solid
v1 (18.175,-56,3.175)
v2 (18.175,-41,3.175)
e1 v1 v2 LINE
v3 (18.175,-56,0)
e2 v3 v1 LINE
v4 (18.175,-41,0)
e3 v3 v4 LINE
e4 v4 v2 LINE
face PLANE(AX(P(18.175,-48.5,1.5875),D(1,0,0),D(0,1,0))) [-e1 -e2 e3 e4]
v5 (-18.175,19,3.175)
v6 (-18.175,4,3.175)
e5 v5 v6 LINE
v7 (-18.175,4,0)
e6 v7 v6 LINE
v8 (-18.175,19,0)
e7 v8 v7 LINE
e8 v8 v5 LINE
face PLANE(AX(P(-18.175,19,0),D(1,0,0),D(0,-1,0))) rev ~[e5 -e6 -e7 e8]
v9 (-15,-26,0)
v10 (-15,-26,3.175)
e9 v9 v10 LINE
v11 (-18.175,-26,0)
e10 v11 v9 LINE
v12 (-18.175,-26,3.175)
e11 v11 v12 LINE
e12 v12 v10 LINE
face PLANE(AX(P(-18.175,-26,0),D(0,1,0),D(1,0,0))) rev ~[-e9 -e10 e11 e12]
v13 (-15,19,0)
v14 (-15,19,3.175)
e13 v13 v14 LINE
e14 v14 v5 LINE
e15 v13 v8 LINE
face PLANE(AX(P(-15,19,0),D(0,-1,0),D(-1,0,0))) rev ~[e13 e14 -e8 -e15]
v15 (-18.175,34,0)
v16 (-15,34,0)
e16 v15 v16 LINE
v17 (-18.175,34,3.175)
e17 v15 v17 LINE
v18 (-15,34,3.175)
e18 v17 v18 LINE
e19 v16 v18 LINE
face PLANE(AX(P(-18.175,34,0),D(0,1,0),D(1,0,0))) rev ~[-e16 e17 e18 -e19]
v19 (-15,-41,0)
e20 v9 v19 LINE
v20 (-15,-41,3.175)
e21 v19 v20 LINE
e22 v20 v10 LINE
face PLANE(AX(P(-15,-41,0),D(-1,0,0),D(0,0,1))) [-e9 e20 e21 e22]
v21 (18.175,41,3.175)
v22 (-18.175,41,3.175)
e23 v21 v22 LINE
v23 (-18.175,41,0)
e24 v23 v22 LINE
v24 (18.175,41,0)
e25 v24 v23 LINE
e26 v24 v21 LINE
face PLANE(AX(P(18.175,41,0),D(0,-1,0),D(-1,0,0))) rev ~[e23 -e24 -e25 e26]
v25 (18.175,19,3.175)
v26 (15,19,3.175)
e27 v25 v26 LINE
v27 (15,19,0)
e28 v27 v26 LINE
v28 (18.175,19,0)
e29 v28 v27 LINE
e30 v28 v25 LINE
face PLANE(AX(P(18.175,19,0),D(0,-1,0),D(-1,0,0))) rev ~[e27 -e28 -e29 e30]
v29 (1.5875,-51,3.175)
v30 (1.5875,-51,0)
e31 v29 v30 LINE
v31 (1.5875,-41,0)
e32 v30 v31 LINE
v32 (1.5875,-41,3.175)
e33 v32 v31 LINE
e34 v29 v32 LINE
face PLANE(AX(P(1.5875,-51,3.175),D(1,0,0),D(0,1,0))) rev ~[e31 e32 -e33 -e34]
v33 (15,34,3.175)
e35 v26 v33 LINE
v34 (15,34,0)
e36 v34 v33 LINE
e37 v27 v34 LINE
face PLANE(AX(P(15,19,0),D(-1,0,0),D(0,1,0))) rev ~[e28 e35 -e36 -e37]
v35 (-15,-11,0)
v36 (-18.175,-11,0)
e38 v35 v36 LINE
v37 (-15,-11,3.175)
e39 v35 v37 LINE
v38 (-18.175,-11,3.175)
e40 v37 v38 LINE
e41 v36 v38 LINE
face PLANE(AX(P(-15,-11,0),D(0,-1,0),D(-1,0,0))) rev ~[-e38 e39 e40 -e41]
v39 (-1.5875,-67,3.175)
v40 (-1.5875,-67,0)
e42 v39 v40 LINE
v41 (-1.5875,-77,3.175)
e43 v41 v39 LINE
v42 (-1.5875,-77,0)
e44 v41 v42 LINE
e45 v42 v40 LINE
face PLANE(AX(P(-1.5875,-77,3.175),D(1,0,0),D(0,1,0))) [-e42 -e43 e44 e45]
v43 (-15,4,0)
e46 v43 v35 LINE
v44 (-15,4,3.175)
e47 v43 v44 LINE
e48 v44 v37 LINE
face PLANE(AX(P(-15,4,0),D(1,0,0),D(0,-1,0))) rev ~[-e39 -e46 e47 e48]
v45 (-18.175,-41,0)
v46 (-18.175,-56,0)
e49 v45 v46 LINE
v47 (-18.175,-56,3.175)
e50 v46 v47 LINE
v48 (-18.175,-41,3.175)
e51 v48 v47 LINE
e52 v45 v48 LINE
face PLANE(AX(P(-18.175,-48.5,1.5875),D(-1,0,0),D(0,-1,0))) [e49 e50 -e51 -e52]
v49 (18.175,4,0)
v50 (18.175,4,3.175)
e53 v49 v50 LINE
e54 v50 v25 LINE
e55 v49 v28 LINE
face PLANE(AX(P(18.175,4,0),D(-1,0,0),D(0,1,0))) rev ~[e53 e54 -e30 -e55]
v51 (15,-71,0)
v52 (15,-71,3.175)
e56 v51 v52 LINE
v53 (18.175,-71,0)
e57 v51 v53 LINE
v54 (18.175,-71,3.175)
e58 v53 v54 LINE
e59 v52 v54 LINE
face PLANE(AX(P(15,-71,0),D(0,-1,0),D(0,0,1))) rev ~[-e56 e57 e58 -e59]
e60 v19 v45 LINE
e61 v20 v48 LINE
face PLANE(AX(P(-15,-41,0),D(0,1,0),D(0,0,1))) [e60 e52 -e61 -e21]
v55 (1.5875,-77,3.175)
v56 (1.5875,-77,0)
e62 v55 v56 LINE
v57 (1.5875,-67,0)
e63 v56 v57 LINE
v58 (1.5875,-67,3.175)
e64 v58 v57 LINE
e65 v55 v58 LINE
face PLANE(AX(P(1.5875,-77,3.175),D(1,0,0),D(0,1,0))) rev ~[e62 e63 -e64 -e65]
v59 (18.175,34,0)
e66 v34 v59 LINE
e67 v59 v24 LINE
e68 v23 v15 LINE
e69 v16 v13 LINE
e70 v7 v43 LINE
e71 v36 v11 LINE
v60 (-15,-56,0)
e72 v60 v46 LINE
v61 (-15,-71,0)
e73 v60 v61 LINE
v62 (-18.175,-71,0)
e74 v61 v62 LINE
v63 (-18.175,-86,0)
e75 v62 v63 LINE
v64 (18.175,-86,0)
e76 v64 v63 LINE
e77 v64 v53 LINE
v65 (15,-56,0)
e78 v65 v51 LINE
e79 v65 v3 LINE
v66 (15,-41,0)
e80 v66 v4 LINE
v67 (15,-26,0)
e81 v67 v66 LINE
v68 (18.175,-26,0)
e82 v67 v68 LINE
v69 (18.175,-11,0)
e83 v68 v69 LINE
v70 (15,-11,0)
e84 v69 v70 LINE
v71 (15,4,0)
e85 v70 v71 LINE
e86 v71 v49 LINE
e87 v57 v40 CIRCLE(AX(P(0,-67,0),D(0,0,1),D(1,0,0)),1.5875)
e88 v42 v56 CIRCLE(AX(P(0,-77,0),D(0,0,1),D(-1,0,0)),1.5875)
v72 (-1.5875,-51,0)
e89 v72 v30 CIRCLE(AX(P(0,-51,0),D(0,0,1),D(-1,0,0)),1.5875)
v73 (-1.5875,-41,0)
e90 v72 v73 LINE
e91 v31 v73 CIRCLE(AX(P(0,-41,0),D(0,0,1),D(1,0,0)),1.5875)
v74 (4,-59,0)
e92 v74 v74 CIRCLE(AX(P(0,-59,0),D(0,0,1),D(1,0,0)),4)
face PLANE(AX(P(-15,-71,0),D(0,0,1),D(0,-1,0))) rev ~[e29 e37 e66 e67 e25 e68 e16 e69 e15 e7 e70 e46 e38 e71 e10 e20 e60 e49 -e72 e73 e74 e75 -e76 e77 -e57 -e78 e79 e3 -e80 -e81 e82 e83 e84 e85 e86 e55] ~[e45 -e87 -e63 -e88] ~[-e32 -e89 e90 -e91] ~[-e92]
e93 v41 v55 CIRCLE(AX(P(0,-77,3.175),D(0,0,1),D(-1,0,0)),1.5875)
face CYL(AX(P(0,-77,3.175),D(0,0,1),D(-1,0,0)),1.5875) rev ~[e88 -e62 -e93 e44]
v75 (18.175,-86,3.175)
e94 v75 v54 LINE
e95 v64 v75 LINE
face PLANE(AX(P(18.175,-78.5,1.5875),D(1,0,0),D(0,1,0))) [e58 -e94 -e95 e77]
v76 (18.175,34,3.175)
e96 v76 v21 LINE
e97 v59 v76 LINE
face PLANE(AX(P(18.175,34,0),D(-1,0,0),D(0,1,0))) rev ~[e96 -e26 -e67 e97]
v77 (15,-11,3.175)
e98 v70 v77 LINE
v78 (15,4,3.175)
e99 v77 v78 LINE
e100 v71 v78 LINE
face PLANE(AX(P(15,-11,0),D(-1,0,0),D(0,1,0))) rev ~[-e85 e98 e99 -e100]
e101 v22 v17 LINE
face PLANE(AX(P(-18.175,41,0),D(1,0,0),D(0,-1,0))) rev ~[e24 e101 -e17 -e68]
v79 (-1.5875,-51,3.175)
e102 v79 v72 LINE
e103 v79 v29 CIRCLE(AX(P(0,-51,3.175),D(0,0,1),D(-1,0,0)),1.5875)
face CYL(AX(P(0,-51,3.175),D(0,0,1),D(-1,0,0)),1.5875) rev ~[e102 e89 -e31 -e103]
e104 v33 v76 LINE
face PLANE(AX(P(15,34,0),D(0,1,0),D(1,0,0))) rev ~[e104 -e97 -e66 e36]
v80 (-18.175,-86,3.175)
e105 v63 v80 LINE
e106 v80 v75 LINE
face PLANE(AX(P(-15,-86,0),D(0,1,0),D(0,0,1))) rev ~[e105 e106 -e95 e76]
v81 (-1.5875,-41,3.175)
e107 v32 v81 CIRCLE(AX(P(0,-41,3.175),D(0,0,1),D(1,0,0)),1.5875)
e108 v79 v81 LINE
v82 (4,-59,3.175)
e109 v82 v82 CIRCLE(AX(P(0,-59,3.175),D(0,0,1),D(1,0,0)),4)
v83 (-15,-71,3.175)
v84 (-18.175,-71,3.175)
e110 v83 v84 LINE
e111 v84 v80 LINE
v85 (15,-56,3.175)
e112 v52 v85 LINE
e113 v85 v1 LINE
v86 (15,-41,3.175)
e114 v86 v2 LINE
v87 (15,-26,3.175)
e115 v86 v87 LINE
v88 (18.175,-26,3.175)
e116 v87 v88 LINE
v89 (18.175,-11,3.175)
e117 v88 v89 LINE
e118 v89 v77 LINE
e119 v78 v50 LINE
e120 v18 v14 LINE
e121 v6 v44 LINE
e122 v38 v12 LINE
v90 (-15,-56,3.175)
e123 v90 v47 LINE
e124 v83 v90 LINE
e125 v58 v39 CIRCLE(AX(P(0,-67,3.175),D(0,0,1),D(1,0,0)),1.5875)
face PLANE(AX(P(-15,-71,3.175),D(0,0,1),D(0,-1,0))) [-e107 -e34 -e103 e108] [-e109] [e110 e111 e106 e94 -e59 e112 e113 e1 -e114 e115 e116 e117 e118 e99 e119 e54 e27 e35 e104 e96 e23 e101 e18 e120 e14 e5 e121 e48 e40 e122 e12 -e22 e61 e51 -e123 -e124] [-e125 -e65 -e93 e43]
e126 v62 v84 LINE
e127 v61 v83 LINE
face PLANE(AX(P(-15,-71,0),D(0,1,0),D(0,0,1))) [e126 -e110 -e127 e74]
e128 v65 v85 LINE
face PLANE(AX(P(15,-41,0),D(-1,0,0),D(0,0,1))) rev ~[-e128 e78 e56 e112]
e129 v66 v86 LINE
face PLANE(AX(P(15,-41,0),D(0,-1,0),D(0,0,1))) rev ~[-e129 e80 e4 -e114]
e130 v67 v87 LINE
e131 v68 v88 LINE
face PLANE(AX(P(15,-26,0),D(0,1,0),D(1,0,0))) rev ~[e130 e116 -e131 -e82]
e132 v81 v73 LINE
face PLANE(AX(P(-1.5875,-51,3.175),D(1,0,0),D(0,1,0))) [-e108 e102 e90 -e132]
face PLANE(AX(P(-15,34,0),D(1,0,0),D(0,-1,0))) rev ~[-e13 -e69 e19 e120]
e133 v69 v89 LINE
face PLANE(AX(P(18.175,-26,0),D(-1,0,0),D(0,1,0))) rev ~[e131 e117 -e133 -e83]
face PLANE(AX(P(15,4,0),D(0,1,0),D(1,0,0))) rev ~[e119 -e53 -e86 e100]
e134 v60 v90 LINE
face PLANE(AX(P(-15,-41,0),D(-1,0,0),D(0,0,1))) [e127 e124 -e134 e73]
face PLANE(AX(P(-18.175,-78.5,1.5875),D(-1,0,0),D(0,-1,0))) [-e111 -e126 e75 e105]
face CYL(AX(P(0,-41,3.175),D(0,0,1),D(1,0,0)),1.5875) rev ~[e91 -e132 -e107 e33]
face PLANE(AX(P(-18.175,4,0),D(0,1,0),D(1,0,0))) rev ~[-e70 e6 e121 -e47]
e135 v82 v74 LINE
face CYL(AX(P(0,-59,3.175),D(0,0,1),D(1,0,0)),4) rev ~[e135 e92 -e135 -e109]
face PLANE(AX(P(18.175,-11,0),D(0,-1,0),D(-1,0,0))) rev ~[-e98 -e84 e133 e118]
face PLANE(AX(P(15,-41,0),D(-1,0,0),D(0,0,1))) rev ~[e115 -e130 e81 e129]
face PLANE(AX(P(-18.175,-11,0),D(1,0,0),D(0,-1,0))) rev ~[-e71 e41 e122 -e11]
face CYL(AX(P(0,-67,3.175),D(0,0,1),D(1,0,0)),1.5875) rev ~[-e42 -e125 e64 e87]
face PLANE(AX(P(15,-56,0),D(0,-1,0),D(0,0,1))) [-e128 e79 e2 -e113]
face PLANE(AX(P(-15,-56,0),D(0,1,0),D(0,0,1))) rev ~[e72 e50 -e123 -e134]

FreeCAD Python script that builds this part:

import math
import FreeCAD as App
import Part
import Sketcher

V = App.Vector

doc = App.newDocument("Part")
body = doc.addObject("PartDesign::Body", "Body")

# Sketch on XY plane
sketch1 = body.newObject("Sketcher::SketchObject", "Sketch")
sketch1.AttachmentSupport = (doc.getObject("XY_Plane"), [""])
sketch1.MapMode = "FlatFace"
sketch1.addGeometry([
    Part.LineSegment(V(-15, -41, 0), V(15, -41, 0)),  # 0
    Part.LineSegment(V(15, -41, 0), V(15, -26, 0)),  # 1
    Part.LineSegment(V(15, -26, 0), V(18.2, -26, 0)),  # 2
    Part.LineSegment(V(18.2, -26, 0), V(18.2, -11, 0)),  # 3
    Part.LineSegment(V(18.2, -11, 0), V(15, -11, 0)),  # 4
    Part.LineSegment(V(15, -11, 0), V(15, 4, 0)),  # 5
    Part.LineSegment(V(15, 4, 0), V(18.2, 4, 0)),  # 6
    Part.LineSegment(V(18.2, 4, 0), V(18.2, 19, 0)),  # 7
    Part.LineSegment(V(18.2, 19, 0), V(15, 19, 0)),  # 8
    Part.LineSegment(V(15, 19, 0), V(15, 34, 0)),  # 9
    Part.LineSegment(V(15, 34, 0), V(18.2, 34, 0)),  # 10
    Part.LineSegment(V(18.2, 34, 0), V(18.2, 41, 0)),  # 11
    Part.LineSegment(V(18.2, 41, 0), V(-18.2, 41, 0)),  # 12
    Part.LineSegment(V(-18.2, 41, 0), V(-18.2, 34, 0)),  # 13
    Part.LineSegment(V(-18.2, 34, 0), V(-15, 34, 0)),  # 14
    Part.LineSegment(V(-15, 34, 0), V(-15, 19, 0)),  # 15
    Part.LineSegment(V(-15, 19, 0), V(-18.2, 19, 0)),  # 16
    Part.LineSegment(V(-18.2, 19, 0), V(-18.2, 4, 0)),  # 17
    Part.LineSegment(V(-18.2, 4, 0), V(-15, 4, 0)),  # 18
    Part.LineSegment(V(-15, 4, 0), V(-15, -11, 0)),  # 19
    Part.LineSegment(V(-15, -11, 0), V(-18.2, -11, 0)),  # 20
    Part.LineSegment(V(-18.2, -11, 0), V(-18.2, -26, 0)),  # 21
    Part.LineSegment(V(-18.2, -26, 0), V(-15, -26, 0)),  # 22
    Part.LineSegment(V(-15, -26, 0), V(-15, -41, 0)),  # 23
], False)
sketch1.addConstraint([
    Sketcher.Constraint("Coincident", 0, 2, 1, 1),
    Sketcher.Constraint("Coincident", 1, 2, 2, 1),
    Sketcher.Constraint("Coincident", 2, 2, 3, 1),
    Sketcher.Constraint("Coincident", 3, 2, 4, 1),
    Sketcher.Constraint("Coincident", 4, 2, 5, 1),
    Sketcher.Constraint("Coincident", 5, 2, 6, 1),
    Sketcher.Constraint("Coincident", 6, 2, 7, 1),
    Sketcher.Constraint("Coincident", 7, 2, 8, 1),
    Sketcher.Constraint("Coincident", 8, 2, 9, 1),
    Sketcher.Constraint("Coincident", 9, 2, 10, 1),
    Sketcher.Constraint("Coincident", 10, 2, 11, 1),
    Sketcher.Constraint("Coincident", 11, 2, 12, 1),
    Sketcher.Constraint("Coincident", 12, 2, 13, 1),
    Sketcher.Constraint("Coincident", 13, 2, 14, 1),
    Sketcher.Constraint("Coincident", 14, 2, 15, 1),
    Sketcher.Constraint("Coincident", 15, 2, 16, 1),
    Sketcher.Constraint("Coincident", 16, 2, 17, 1),
    Sketcher.Constraint("Coincident", 17, 2, 18, 1),
    Sketcher.Constraint("Coincident", 18, 2, 19, 1),
    Sketcher.Constraint("Coincident", 19, 2, 20, 1),
    Sketcher.Constraint("Coincident", 20, 2, 21, 1),
    Sketcher.Constraint("Coincident", 21, 2, 22, 1),
    Sketcher.Constraint("Coincident", 22, 2, 23, 1),
    Sketcher.Constraint("Coincident", 23, 2, 0, 1),
    Sketcher.Constraint("Horizontal", 0),
    Sketcher.Constraint("Vertical", 1),
    Sketcher.Constraint("Horizontal", 2),
    Sketcher.Constraint("Vertical", 3),
    Sketcher.Constraint("Horizontal", 4),
    Sketcher.Constraint("Vertical", 5),
    Sketcher.Constraint("Horizontal", 6),
    Sketcher.Constraint("Vertical", 7),
    Sketcher.Constraint("Horizontal", 8),
    Sketcher.Constraint("Vertical", 9),
    Sketcher.Constraint("Horizontal", 10),
    Sketcher.Constraint("Vertical", 11),
    Sketcher.Constraint("Horizontal", 12),
    Sketcher.Constraint("Vertical", 13),
    Sketcher.Constraint("Horizontal", 14),
    Sketcher.Constraint("Vertical", 15),
    Sketcher.Constraint("Horizontal", 16),
    Sketcher.Constraint("Vertical", 17),
    Sketcher.Constraint("Horizontal", 18),
    Sketcher.Constraint("Vertical", 19),
    Sketcher.Constraint("Horizontal", 20),
    Sketcher.Constraint("Vertical", 21),
    Sketcher.Constraint("Horizontal", 22),
    Sketcher.Constraint("Vertical", 23),
    Sketcher.Constraint("Symmetric", 10, 2, 13, 2, -2),
    Sketcher.Constraint("Symmetric", 8, 2, 15, 2, -2),
    Sketcher.Constraint("Symmetric", 6, 2, 17, 2, -2),
    Sketcher.Constraint("Symmetric", 4, 2, 19, 2, -2),
    Sketcher.Constraint("Symmetric", 2, 2, 21, 2, -2),
    Sketcher.Constraint("Vertical", 1, 2, 4, 2),
    Sketcher.Constraint("Vertical", 3, 2, 6, 2),
    Sketcher.Constraint("Vertical", 5, 2, 8, 2),
    Sketcher.Constraint("Vertical", 7, 2, 10, 2),
    Sketcher.Constraint("Vertical", 19, 2, 22, 2),
    Sketcher.Constraint("Equal", 1, 3),
    Sketcher.Constraint("Equal", 3, 5),
    Sketcher.Constraint("Equal", 5, 7),
    Sketcher.Constraint("Equal", 7, 9),
    Sketcher.Constraint("DistanceX", 0, 1, 0, 2, 30.0),
    Sketcher.Constraint("DistanceY", 1, 1, 1, 2, 15.0),
    Sketcher.Constraint("DistanceY", 11, 1, 11, 2, 7.0),
    Sketcher.Constraint("DistanceY", 0, 2, -1, 1, 41.0),
    Sketcher.Constraint("DistanceX", 12, 2, 12, 1, 36.35),
])
pad1 = body.newObject("PartDesign::Pad", "Pad")
pad1.Profile = sketch1
pad1.Length = 3.175

# Sketch on XZ plane
sketch2 = body.newObject("Sketcher::SketchObject", "Sketch001")
sketch2.AttachmentSupport = (doc.getObject("XZ_Plane"), [""])
sketch2.MapMode = "FlatFace"
sketch2.AttachmentOffset = App.Placement(V(0, 0, 41), App.Rotation())
sketch2.addGeometry([
    Part.LineSegment(V(-15, 3.2, 0), V(-15, 0, 0)),
    Part.LineSegment(V(-15, 0, 0), V(15, 0, 0)),
    Part.LineSegment(V(15, 0, 0), V(15, 3.2, 0)),
    Part.LineSegment(V(15, 3.2, 0), V(-15, 3.2, 0)),
], False)
sketch2.addConstraint([
    Sketcher.Constraint("Coincident", 0, 2, 1, 1),
    Sketcher.Constraint("Coincident", 1, 2, 2, 1),
    Sketcher.Constraint("Coincident", 2, 2, 3, 1),
    Sketcher.Constraint("Coincident", 3, 2, 0, 1),
    Sketcher.Constraint("Vertical", 0),
    Sketcher.Constraint("Horizontal", 1),
    Sketcher.Constraint("Vertical", 2),
    Sketcher.Constraint("Horizontal", 3),
    Sketcher.Constraint("Symmetric", 0, 2, 1, 2, -1, 1),
    Sketcher.Constraint("DistanceX", 1, 1, 1, 2, 30.0),
    Sketcher.Constraint("DistanceY", 0, 2, 0, 1, 3.175),
])
pad2 = body.newObject("PartDesign::Pad", "Pad001")
pad2.Profile = sketch2
pad2.Length = 45

# Sketch on XY plane
sketch3 = body.newObject("Sketcher::SketchObject", "Sketch002")
sketch3.AttachmentSupport = (doc.getObject("XY_Plane"), [""])
sketch3.MapMode = "FlatFace"
sketch3.AttachmentOffset = App.Placement(V(0, 0, 3.175), App.Rotation())
sketch3.addGeometry([
    Part.Circle(V(0, -59, 0), V(0, 0, 1), 4),  # 0
    Part.ArcOfCircle(Part.Circle(V(0, -51, 0), V(0, 0, 1), 1.6), math.radians(180), math.radians(360)),  # 1
    Part.LineSegment(V(1.6, -51, 0), V(1.6, -41, 0)),  # 2
    Part.ArcOfCircle(Part.Circle(V(0, -41, 0), V(0, 0, 1), 1.6), math.radians(0), math.radians(180)),  # 3
    Part.LineSegment(V(-1.6, -41, 0), V(-1.6, -51, 0)),  # 4
    Part.ArcOfCircle(Part.Circle(V(0, -77, 0), V(0, 0, 1), 1.6), math.radians(180), math.radians(360)),  # 5
    Part.LineSegment(V(1.6, -77, 0), V(1.6, -67, 0)),  # 6
    Part.ArcOfCircle(Part.Circle(V(0, -67, 0), V(0, 0, 1), 1.6), math.radians(0), math.radians(180)),  # 7
    Part.LineSegment(V(-1.6, -67, 0), V(-1.6, -77, 0)),  # 8
], False)
sketch3.addConstraint([
    Sketcher.Constraint("Tangent", 1, 2, 2, 1),
    Sketcher.Constraint("Tangent", 2, 2, 3, 1),
    Sketcher.Constraint("Tangent", 3, 2, 4, 1),
    Sketcher.Constraint("Tangent", 4, 2, 1, 1),
    Sketcher.Constraint("Tangent", 5, 2, 6, 1),
    Sketcher.Constraint("Tangent", 6, 2, 7, 1),
    Sketcher.Constraint("Tangent", 7, 2, 8, 1),
    Sketcher.Constraint("Tangent", 8, 2, 5, 1),
    Sketcher.Constraint("Vertical", 2),
    Sketcher.Constraint("Vertical", 4),
    Sketcher.Constraint("Vertical", 6),
    Sketcher.Constraint("Vertical", 8),
    Sketcher.Constraint("Equal", 3, 5),
    Sketcher.Constraint("PointOnObject", 0, 3, -2),
    Sketcher.Constraint("PointOnObject", 1, 3, -2),
    Sketcher.Constraint("PointOnObject", 5, 3, -2),
    Sketcher.Constraint("Equal", 4, 6),
    Sketcher.Constraint("Diameter", 0, 8.0),
    Sketcher.Constraint("DistanceY", 2, 1, 2, 2, 10.0),
    Sketcher.Constraint("DistanceY", 0, 3, -1, 1, 59.0),
    Sketcher.Constraint("DistanceY", 1, 3, -1, 1, 51.0),
    Sketcher.Constraint("DistanceY", 5, 3, -1, 1, 77.0),
    Sketcher.Constraint("Radius", 1, 1.5875),
])
pocket1 = body.newObject("PartDesign::Pocket", "Pocket")
pocket1.Profile = sketch3
pocket1.Length = 25

# Sketch on YZ plane
sketch4 = body.newObject("Sketcher::SketchObject", "Sketch003")
sketch4.AttachmentSupport = (doc.getObject("YZ_Plane"), [""])
sketch4.MapMode = "FlatFace"
sketch4.AttachmentOffset = App.Placement(V(0, 0, 15), App.Rotation())
sketch4.addGeometry([
    Part.LineSegment(V(-86, 3.2, 0), V(-86, 0, 0)),  # 0
    Part.LineSegment(V(-86, 0, 0), V(-71, 0, 0)),  # 1
    Part.LineSegment(V(-71, 0, 0), V(-71, 3.2, 0)),  # 2
    Part.LineSegment(V(-71, 3.2, 0), V(-86, 3.2, 0)),  # 3
    Part.LineSegment(V(-56, 3.2, 0), V(-56, 0, 0)),  # 4
    Part.LineSegment(V(-56, 0, 0), V(-41, 0, 0)),  # 5
    Part.LineSegment(V(-41, 0, 0), V(-41, 3.2, 0)),  # 6
    Part.LineSegment(V(-41, 3.2, 0), V(-56, 3.2, 0)),  # 7
], False)
sketch4.addConstraint([
    Sketcher.Constraint("Coincident", 0, 2, 1, 1),
    Sketcher.Constraint("Coincident", 1, 2, 2, 1),
    Sketcher.Constraint("Coincident", 2, 2, 3, 1),
    Sketcher.Constraint("Coincident", 3, 2, 0, 1),
    Sketcher.Constraint("Coincident", 4, 2, 5, 1),
    Sketcher.Constraint("Coincident", 5, 2, 6, 1),
    Sketcher.Constraint("Coincident", 6, 2, 7, 1),
    Sketcher.Constraint("Coincident", 7, 2, 4, 1),
    Sketcher.Constraint("Vertical", 0),
    Sketcher.Constraint("Horizontal", 1),
    Sketcher.Constraint("Vertical", 2),
    Sketcher.Constraint("Horizontal", 3),
    Sketcher.Constraint("Vertical", 4),
    Sketcher.Constraint("Horizontal", 5),
    Sketcher.Constraint("Vertical", 6),
    Sketcher.Constraint("Horizontal", 7),
    Sketcher.Constraint("PointOnObject", 0, 2, -1),
    Sketcher.Constraint("PointOnObject", 4, 2, -1),
    Sketcher.Constraint("Horizontal", 3, 2, 6, 2),
    Sketcher.Constraint("Equal", 3, 5),
    Sketcher.Constraint("DistanceX", 1, 1, 1, 2, 15.0),
    Sketcher.Constraint("DistanceX", 0, 2, -1, 1, 86.0),
    Sketcher.Constraint("DistanceX", 4, 2, -1, 1, 56.0),
    Sketcher.Constraint("DistanceY", 0, 2, 0, 1, 3.175),
])
pad3 = body.newObject("PartDesign::Pad", "Pad002")
pad3.Profile = sketch4
pad3.Length = 3.175

# Sketch on YZ plane
sketch5 = body.newObject("Sketcher::SketchObject", "Sketch004")
sketch5.AttachmentSupport = (doc.getObject("YZ_Plane"), [""])
sketch5.MapMode = "FlatFace"
sketch5.AttachmentOffset = App.Placement(V(0, 0, -15), App.Rotation())
sketch5.addGeometry([
    Part.LineSegment(V(-41, 3.2, 0), V(-41, 0, 0)),  # 0
    Part.LineSegment(V(-41, 0, 0), V(-56, 0, 0)),  # 1
    Part.LineSegment(V(-56, 0, 0), V(-56, 3.2, 0)),  # 2
    Part.LineSegment(V(-56, 3.2, 0), V(-41, 3.2, 0)),  # 3
    Part.LineSegment(V(-71, 3.2, 0), V(-71, 0, 0)),  # 4
    Part.LineSegment(V(-71, 0, 0), V(-86, 0, 0)),  # 5
    Part.LineSegment(V(-86, 0, 0), V(-86, 3.2, 0)),  # 6
    Part.LineSegment(V(-86, 3.2, 0), V(-71, 3.2, 0)),  # 7
], False)
sketch5.addConstraint([
    Sketcher.Constraint("Coincident", 0, 2, 1, 1),
    Sketcher.Constraint("Coincident", 1, 2, 2, 1),
    Sketcher.Constraint("Coincident", 2, 2, 3, 1),
    Sketcher.Constraint("Coincident", 3, 2, 0, 1),
    Sketcher.Constraint("Coincident", 4, 2, 5, 1),
    Sketcher.Constraint("Coincident", 5, 2, 6, 1),
    Sketcher.Constraint("Coincident", 6, 2, 7, 1),
    Sketcher.Constraint("Coincident", 7, 2, 4, 1),
    Sketcher.Constraint("Vertical", 0),
    Sketcher.Constraint("Horizontal", 1),
    Sketcher.Constraint("Vertical", 2),
    Sketcher.Constraint("Horizontal", 3),
    Sketcher.Constraint("Vertical", 4),
    Sketcher.Constraint("Horizontal", 5),
    Sketcher.Constraint("Vertical", 6),
    Sketcher.Constraint("Horizontal", 7),
    Sketcher.Constraint("PointOnObject", 0, 2, -1),
    Sketcher.Constraint("PointOnObject", 4, 2, -1),
    Sketcher.Constraint("Horizontal", 3, 2, 6, 2),
    Sketcher.Constraint("Equal", 3, 5),
    Sketcher.Constraint("DistanceX", 1, 2, 1, 1, 15.0),
    Sketcher.Constraint("DistanceX", 0, 2, -1, 1, 41.0),
    Sketcher.Constraint("DistanceX", 4, 2, -1, 1, 71.0),
    Sketcher.Constraint("DistanceY", 0, 2, 0, 1, 3.175),
])
pad4 = body.newObject("PartDesign::Pad", "Pad003")
pad4.Profile = sketch5
pad4.Length = 3.175
pad4.Reversed = True

doc.recompute()
